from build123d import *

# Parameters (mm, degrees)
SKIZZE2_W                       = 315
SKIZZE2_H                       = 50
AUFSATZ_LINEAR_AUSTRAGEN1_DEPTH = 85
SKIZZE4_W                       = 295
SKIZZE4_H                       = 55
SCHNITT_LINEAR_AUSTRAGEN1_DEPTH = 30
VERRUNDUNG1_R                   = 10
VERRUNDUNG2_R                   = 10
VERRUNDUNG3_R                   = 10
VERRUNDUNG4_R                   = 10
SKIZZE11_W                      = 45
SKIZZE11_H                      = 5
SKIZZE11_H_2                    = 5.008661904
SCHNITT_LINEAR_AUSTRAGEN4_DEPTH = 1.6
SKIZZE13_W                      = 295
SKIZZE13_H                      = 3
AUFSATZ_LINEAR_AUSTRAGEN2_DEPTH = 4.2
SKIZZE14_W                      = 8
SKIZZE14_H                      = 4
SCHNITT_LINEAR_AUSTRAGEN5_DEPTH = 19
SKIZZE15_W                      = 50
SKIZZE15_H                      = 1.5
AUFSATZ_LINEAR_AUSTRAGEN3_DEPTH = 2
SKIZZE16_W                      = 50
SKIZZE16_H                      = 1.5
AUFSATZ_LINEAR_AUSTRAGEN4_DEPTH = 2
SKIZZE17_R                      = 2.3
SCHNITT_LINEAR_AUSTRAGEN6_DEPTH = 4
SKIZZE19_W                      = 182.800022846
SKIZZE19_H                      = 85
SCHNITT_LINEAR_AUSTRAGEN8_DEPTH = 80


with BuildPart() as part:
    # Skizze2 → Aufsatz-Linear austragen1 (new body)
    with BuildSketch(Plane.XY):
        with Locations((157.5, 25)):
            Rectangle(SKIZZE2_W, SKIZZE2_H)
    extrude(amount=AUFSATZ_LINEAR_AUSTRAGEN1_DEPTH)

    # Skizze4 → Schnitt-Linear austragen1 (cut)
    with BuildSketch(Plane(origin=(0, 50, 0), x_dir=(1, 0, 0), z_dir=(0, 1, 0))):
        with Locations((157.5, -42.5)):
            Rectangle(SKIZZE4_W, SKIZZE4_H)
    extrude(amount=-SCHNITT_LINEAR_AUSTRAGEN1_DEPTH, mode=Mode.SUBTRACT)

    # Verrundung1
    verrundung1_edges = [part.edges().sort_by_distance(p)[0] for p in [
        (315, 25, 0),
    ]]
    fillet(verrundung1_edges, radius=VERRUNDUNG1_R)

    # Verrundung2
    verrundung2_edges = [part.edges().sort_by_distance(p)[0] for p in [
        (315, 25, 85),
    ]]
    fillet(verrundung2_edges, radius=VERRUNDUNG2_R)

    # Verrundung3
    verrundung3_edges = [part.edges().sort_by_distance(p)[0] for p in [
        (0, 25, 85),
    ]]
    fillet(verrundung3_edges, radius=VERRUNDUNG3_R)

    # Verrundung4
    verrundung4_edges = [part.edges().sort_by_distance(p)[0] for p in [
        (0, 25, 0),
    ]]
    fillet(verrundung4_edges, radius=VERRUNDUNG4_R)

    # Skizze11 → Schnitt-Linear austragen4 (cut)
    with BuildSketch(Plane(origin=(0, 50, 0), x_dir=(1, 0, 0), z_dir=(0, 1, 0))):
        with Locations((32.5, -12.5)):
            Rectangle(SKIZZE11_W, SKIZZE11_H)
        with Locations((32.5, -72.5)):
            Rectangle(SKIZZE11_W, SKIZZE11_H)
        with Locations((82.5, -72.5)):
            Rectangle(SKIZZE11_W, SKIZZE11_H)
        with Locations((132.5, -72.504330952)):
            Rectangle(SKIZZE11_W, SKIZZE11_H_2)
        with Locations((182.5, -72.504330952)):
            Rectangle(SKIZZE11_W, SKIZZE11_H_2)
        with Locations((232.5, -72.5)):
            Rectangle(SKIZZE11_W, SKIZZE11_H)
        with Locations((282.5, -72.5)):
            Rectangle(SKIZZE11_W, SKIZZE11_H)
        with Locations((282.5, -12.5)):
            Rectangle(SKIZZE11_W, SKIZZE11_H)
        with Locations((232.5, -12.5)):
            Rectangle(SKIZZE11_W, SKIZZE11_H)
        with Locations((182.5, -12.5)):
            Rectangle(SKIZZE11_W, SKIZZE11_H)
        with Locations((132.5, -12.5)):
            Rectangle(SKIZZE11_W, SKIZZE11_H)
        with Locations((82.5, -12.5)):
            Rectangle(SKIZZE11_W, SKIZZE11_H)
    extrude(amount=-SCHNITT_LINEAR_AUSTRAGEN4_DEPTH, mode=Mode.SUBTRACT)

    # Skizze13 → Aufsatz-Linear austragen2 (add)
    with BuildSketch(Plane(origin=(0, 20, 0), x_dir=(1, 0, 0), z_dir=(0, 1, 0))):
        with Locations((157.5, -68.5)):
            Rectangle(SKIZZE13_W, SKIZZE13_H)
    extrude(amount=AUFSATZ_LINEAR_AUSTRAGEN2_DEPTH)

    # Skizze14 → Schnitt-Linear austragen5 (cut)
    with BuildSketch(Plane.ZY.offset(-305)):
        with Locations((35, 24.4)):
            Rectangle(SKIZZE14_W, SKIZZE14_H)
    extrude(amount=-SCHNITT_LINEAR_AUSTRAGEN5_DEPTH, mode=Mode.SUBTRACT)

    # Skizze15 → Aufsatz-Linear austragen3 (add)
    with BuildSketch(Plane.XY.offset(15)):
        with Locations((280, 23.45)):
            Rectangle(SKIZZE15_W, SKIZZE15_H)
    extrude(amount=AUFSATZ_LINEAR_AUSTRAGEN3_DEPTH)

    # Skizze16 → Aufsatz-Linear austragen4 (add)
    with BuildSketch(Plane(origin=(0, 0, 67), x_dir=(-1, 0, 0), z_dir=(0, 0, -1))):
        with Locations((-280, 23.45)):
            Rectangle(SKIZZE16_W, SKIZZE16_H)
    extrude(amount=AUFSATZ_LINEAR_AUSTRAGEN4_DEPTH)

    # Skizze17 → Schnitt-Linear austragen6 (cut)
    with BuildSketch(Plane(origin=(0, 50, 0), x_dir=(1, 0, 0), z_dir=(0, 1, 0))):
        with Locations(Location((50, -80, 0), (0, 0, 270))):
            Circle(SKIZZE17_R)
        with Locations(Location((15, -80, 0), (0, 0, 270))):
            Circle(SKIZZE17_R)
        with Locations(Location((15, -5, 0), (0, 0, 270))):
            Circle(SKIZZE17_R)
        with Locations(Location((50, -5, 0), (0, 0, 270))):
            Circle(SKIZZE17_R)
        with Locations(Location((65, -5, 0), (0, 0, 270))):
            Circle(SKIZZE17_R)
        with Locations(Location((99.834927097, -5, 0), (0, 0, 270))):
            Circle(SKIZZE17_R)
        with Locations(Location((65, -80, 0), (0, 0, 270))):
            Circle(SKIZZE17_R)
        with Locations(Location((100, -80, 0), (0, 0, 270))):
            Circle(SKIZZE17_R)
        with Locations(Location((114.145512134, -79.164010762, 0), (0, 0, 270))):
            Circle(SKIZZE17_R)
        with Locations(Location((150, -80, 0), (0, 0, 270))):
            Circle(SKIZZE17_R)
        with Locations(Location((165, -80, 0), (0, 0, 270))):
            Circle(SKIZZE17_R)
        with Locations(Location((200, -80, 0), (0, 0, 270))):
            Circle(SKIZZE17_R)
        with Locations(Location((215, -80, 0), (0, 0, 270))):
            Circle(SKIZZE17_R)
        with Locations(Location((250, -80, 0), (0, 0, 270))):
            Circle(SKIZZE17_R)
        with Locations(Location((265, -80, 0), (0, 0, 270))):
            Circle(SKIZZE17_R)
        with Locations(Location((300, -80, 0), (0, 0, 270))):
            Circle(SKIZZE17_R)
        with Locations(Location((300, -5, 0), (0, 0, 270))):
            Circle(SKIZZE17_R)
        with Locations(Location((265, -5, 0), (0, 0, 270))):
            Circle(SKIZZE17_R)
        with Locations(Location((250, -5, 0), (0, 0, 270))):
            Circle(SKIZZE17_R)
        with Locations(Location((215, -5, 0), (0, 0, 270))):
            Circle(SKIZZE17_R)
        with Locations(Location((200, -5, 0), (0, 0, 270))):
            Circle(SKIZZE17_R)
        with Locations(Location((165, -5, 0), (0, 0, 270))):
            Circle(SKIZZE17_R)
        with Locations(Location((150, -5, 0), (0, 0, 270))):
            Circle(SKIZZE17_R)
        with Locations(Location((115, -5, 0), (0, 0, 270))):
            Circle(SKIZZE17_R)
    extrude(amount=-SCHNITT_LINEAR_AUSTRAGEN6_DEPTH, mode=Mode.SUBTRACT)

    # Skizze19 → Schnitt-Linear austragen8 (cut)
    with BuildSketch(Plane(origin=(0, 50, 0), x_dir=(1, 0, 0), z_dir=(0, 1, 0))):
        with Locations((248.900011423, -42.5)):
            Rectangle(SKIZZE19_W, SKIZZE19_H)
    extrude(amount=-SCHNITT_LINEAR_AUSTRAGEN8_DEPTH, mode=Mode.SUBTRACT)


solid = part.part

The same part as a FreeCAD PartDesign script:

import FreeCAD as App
import Part
import Sketcher

V = App.Vector
Q = App.Units.Quantity


def edges_at(feature, points):
    """Names of the edges that pass closest to the given points."""
    edges = feature.Shape.Edges
    near = lambda p: min(range(len(edges)), key=lambda i: edges[i].distToShape(Part.Vertex(*p))[0])
    return sorted({f"Edge{near(p) + 1}" for p in points})

doc = App.newDocument("Part")
params = doc.addObject("Spreadsheet::Sheet", "Params")
for row, (alias, value) in enumerate([
    ("sketch1_width", "315 mm"),
    ("sketch1_height", "50 mm"),
    ("pad1_length", "85 mm"),
    ("sketch2_width", "295 mm"),
    ("sketch2_height", "55 mm"),
    ("pocket1_length", "30 mm"),
    ("fillet_radius", "10 mm"),
    ("fillet2_radius", "10 mm"),
    ("fillet3_radius", "10 mm"),
    ("fillet4_radius", "10 mm"),
    ("sketch3_width", "45 mm"),
    ("sketch3_height", "5 mm"),
    ("pocket2_length", "1.6 mm"),
    ("sketch4_width", "295 mm"),
    ("sketch4_height", "3 mm"),
    ("pad2_length", "4.2 mm"),
    ("sketch5_width", "4 mm"),
    ("sketch5_height", "8 mm"),
    ("pocket3_length", "19 mm"),
    ("sketch6_width", "50 mm"),
    ("sketch6_height", "1.5 mm"),
    ("pad3_length", "2 mm"),
    ("sketch7_width", "50 mm"),
    ("sketch7_height", "1.5 mm"),
    ("pad4_length", "2 mm"),
    ("sketch8_diameter", "4.6 mm"),
    ("pocket4_length", "4 mm"),
    ("sketch9_height", "85 mm"),
    ("pocket5_length", "80 mm"),
], start=1):
    params.set(f"A{row}", alias)
    params.set(f"B{row}", "=" + value)
    params.setAlias(f"B{row}", alias)

body = doc.addObject("PartDesign::Body", "Body")

# Sketch on XY plane
sketch1 = doc.addObject("Sketcher::SketchObject", "Sketch")
body.addObject(sketch1)
sketch1.AttachmentSupport = (doc.XY_Plane, [""])
sketch1.MapMode = "FlatFace"
sketch1.addGeometry(Part.LineSegment(V(0, 50, 0), V(0, 0, 0)), False)
sketch1.addGeometry(Part.LineSegment(V(0, 0, 0), V(315, 0, 0)), False)
sketch1.addGeometry(Part.LineSegment(V(315, 0, 0), V(315, 50, 0)), False)
sketch1.addGeometry(Part.LineSegment(V(315, 50, 0), V(0, 50, 0)), False)
sketch1.addConstraint(Sketcher.Constraint("Coincident", 0, 2, 1, 1))
sketch1.addConstraint(Sketcher.Constraint("Coincident", 1, 2, 2, 1))
sketch1.addConstraint(Sketcher.Constraint("Coincident", 2, 2, 3, 1))
sketch1.addConstraint(Sketcher.Constraint("Coincident", 3, 2, 0, 1))
sketch1.addConstraint(Sketcher.Constraint("Vertical", 0))
sketch1.addConstraint(Sketcher.Constraint("Horizontal", 1))
sketch1.addConstraint(Sketcher.Constraint("Vertical", 2))
sketch1.addConstraint(Sketcher.Constraint("Horizontal", 3))
sketch1.addConstraint(Sketcher.Constraint("Coincident", 0, 2, -1, 1))
sketch1.addConstraint(Sketcher.Constraint("DistanceX", 1, 1, 1, 2, Q("315 mm")))
sketch1.addConstraint(Sketcher.Constraint("DistanceY", 0, 2, 0, 1, Q("50 mm")))
sketch1.setExpression("Constraints[9]", "Params.sketch1_width")
sketch1.setExpression("Constraints[10]", "Params.sketch1_height")
pad1 = doc.addObject("PartDesign::Pad", "Pad")
body.addObject(pad1)
pad1.Profile = sketch1
pad1.setExpression("Length", "Params.pad1_length")

# Sketch on XZ plane
sketch2 = doc.addObject("Sketcher::SketchObject", "Sketch001")
body.addObject(sketch2)
sketch2.AttachmentSupport = (doc.XZ_Plane, [""])
sketch2.MapMode = "FlatFace"
sketch2.AttachmentOffset = App.Placement(V(0, 0, -50), App.Rotation())
sketch2.addGeometry(Part.LineSegment(V(10, 15, 0), V(10, 70, 0)), False)
sketch2.addGeometry(Part.LineSegment(V(10, 70, 0), V(305, 70, 0)), False)
sketch2.addGeometry(Part.LineSegment(V(305, 70, 0), V(305, 15, 0)), False)
sketch2.addGeometry(Part.LineSegment(V(305, 15, 0), V(10, 15, 0)), False)
sketch2.addConstraint(Sketcher.Constraint("Coincident", 0, 2, 1, 1))
sketch2.addConstraint(Sketcher.Constraint("Coincident", 1, 2, 2, 1))
sketch2.addConstraint(Sketcher.Constraint("Coincident", 2, 2, 3, 1))
sketch2.addConstraint(Sketcher.Constraint("Coincident", 3, 2, 0, 1))
sketch2.addConstraint(Sketcher.Constraint("Vertical", 0))
sketch2.addConstraint(Sketcher.Constraint("Horizontal", 1))
sketch2.addConstraint(Sketcher.Constraint("Vertical", 2))
sketch2.addConstraint(Sketcher.Constraint("Horizontal", 3))
sketch2.addConstraint(Sketcher.Constraint("DistanceX", 1, 1, 1, 2, Q("295 mm")))
sketch2.addConstraint(Sketcher.Constraint("DistanceY", 0, 1, 0, 2, Q("55 mm")))
sketch2.addConstraint(Sketcher.Constraint("DistanceX", -1, 1, 0, 2, Q("10 mm")))
sketch2.addConstraint(Sketcher.Constraint("DistanceY", -1, 1, 0, 2, Q("70 mm")))
sketch2.setExpression("Constraints[8]", "Params.sketch2_width")
sketch2.setExpression("Constraints[9]", "Params.sketch2_height")
pocket1 = doc.addObject("PartDesign::Pocket", "Pocket")
body.addObject(pocket1)
pocket1.Profile = sketch2
pocket1.setExpression("Length", "Params.pocket1_length")
pocket1.Reversed = True
doc.recompute()

fillet = doc.addObject("PartDesign::Fillet", "Fillet")
body.addObject(fillet)
fillet.Base = (pocket1, edges_at(pocket1, [(315, 25, 0)]))
fillet.setExpression("Radius", "Params.fillet_radius")
doc.recompute()

fillet2 = doc.addObject("PartDesign::Fillet", "Fillet001")
body.addObject(fillet2)
fillet2.Base = (fillet, edges_at(fillet, [(315, 25, 85)]))
fillet2.setExpression("Radius", "Params.fillet2_radius")
doc.recompute()

fillet3 = doc.addObject("PartDesign::Fillet", "Fillet002")
body.addObject(fillet3)
fillet3.Base = (fillet2, edges_at(fillet2, [(0, 25, 85)]))
fillet3.setExpression("Radius", "Params.fillet3_radius")
doc.recompute()

fillet4 = doc.addObject("PartDesign::Fillet", "Fillet003")
body.addObject(fillet4)
fillet4.Base = (fillet3, edges_at(fillet3, [(0, 25, 0)]))
fillet4.setExpression("Radius", "Params.fillet4_radius")

# Sketch on XZ plane
sketch3 = doc.addObject("Sketcher::SketchObject", "Sketch002")
body.addObject(sketch3)
sketch3.AttachmentSupport = (doc.XZ_Plane, [""])
sketch3.MapMode = "FlatFace"
sketch3.AttachmentOffset = App.Placement(V(0, 0, -50), App.Rotation())
sketch3.addGeometry(Part.LineSegment(V(10, 10, 0), V(10, 15, 0)), False)
sketch3.addGeometry(Part.LineSegment(V(10, 15, 0), V(55, 15, 0)), False)
sketch3.addGeometry(Part.LineSegment(V(55, 15, 0), V(55, 10, 0)), False)
sketch3.addGeometry(Part.LineSegment(V(55, 10, 0), V(10, 10, 0)), False)
sketch3.addGeometry(Part.LineSegment(V(10, 70, 0), V(10, 75, 0)), False)
sketch3.addGeometry(Part.LineSegment(V(10, 75, 0), V(55, 75, 0)), False)
sketch3.addGeometry(Part.LineSegment(V(55, 75, 0), V(55, 70, 0)), False)
sketch3.addGeometry(Part.LineSegment(V(55, 70, 0), V(10, 70, 0)), False)
sketch3.addGeometry(Part.LineSegment(V(60, 70, 0), V(60, 75, 0)), False)
sketch3.addGeometry(Part.LineSegment(V(60, 75, 0), V(105, 75, 0)), False)
sketch3.addGeometry(Part.LineSegment(V(105, 75, 0), V(105, 70, 0)), False)
sketch3.addGeometry(Part.LineSegment(V(105, 70, 0), V(60, 70, 0)), False)
sketch3.addGeometry(Part.LineSegment(V(110, 70, 0), V(110, 75, 0)), False)
sketch3.addGeometry(Part.LineSegment(V(110, 75, 0), V(155, 75, 0)), False)
sketch3.addGeometry(Part.LineSegment(V(155, 75, 0), V(155, 70, 0)), False)
sketch3.addGeometry(Part.LineSegment(V(155, 70, 0), V(110, 70, 0)), False)
sketch3.addGeometry(Part.LineSegment(V(160, 70, 0), V(160, 75, 0)), False)
sketch3.addGeometry(Part.LineSegment(V(160, 75, 0), V(205, 75, 0)), False)
sketch3.addGeometry(Part.LineSegment(V(205, 75, 0), V(205, 70, 0)), False)
sketch3.addGeometry(Part.LineSegment(V(205, 70, 0), V(160, 70, 0)), False)
sketch3.addGeometry(Part.LineSegment(V(210, 70, 0), V(210, 75, 0)), False)
sketch3.addGeometry(Part.LineSegment(V(210, 75, 0), V(255, 75, 0)), False)
sketch3.addGeometry(Part.LineSegment(V(255, 75, 0), V(255, 70, 0)), False)
sketch3.addGeometry(Part.LineSegment(V(255, 70, 0), V(210, 70, 0)), False)
sketch3.addGeometry(Part.LineSegment(V(260, 70, 0), V(260, 75, 0)), False)
sketch3.addGeometry(Part.LineSegment(V(260, 75, 0), V(305, 75, 0)), False)
sketch3.addGeometry(Part.LineSegment(V(305, 75, 0), V(305, 70, 0)), False)
sketch3.addGeometry(Part.LineSegment(V(305, 70, 0), V(260, 70, 0)), False)
sketch3.addGeometry(Part.LineSegment(V(260, 10, 0), V(260, 15, 0)), False)
sketch3.addGeometry(Part.LineSegment(V(260, 15, 0), V(305, 15, 0)), False)
sketch3.addGeometry(Part.LineSegment(V(305, 15, 0), V(305, 10, 0)), False)
sketch3.addGeometry(Part.LineSegment(V(305, 10, 0), V(260, 10, 0)), False)
sketch3.addGeometry(Part.LineSegment(V(210, 10, 0), V(210, 15, 0)), False)
sketch3.addGeometry(Part.LineSegment(V(210, 15, 0), V(255, 15, 0)), False)
sketch3.addGeometry(Part.LineSegment(V(255, 15, 0), V(255, 10, 0)), False)
sketch3.addGeometry(Part.LineSegment(V(255, 10, 0), V(210, 10, 0)), False)
sketch3.addGeometry(Part.LineSegment(V(160, 10, 0), V(160, 15, 0)), False)
sketch3.addGeometry(Part.LineSegment(V(160, 15, 0), V(205, 15, 0)), False)
sketch3.addGeometry(Part.LineSegment(V(205, 15, 0), V(205, 10, 0)), False)
sketch3.addGeometry(Part.LineSegment(V(205, 10, 0), V(160, 10, 0)), False)
sketch3.addGeometry(Part.LineSegment(V(110, 10, 0), V(110, 15, 0)), False)
sketch3.addGeometry(Part.LineSegment(V(110, 15, 0), V(155, 15, 0)), False)
sketch3.addGeometry(Part.LineSegment(V(155, 15, 0), V(155, 10, 0)), False)
sketch3.addGeometry(Part.LineSegment(V(155, 10, 0), V(110, 10, 0)), False)
sketch3.addGeometry(Part.LineSegment(V(60, 10, 0), V(60, 15, 0)), False)
sketch3.addGeometry(Part.LineSegment(V(60, 15, 0), V(105, 15, 0)), False)
sketch3.addGeometry(Part.LineSegment(V(105, 15, 0), V(105, 10, 0)), False)
sketch3.addGeometry(Part.LineSegment(V(105, 10, 0), V(60, 10, 0)), False)
sketch3.addConstraint(Sketcher.Constraint("Coincident", 0, 2, 1, 1))
sketch3.addConstraint(Sketcher.Constraint("Coincident", 1, 2, 2, 1))
sketch3.addConstraint(Sketcher.Constraint("Coincident", 2, 2, 3, 1))
sketch3.addConstraint(Sketcher.Constraint("Coincident", 3, 2, 0, 1))
sketch3.addConstraint(Sketcher.Constraint("Coincident", 4, 2, 5, 1))
sketch3.addConstraint(Sketcher.Constraint("Coincident", 5, 2, 6, 1))
sketch3.addConstraint(Sketcher.Constraint("Coincident", 6, 2, 7, 1))
sketch3.addConstraint(Sketcher.Constraint("Coincident", 7, 2, 4, 1))
sketch3.addConstraint(Sketcher.Constraint("Coincident", 8, 2, 9, 1))
sketch3.addConstraint(Sketcher.Constraint("Coincident", 9, 2, 10, 1))
sketch3.addConstraint(Sketcher.Constraint("Coincident", 10, 2, 11, 1))
sketch3.addConstraint(Sketcher.Constraint("Coincident", 11, 2, 8, 1))
sketch3.addConstraint(Sketcher.Constraint("Coincident", 12, 2, 13, 1))
sketch3.addConstraint(Sketcher.Constraint("Coincident", 13, 2, 14, 1))
sketch3.addConstraint(Sketcher.Constraint("Coincident", 14, 2, 15, 1))
sketch3.addConstraint(Sketcher.Constraint("Coincident", 15, 2, 12, 1))
sketch3.addConstraint(Sketcher.Constraint("Coincident", 16, 2, 17, 1))
sketch3.addConstraint(Sketcher.Constraint("Coincident", 17, 2, 18, 1))
sketch3.addConstraint(Sketcher.Constraint("Coincident", 18, 2, 19, 1))
sketch3.addConstraint(Sketcher.Constraint("Coincident", 19, 2, 16, 1))
sketch3.addConstraint(Sketcher.Constraint("Coincident", 20, 2, 21, 1))
sketch3.addConstraint(Sketcher.Constraint("Coincident", 21, 2, 22, 1))
sketch3.addConstraint(Sketcher.Constraint("Coincident", 22, 2, 23, 1))
sketch3.addConstraint(Sketcher.Constraint("Coincident", 23, 2, 20, 1))
sketch3.addConstraint(Sketcher.Constraint("Coincident", 24, 2, 25, 1))
sketch3.addConstraint(Sketcher.Constraint("Coincident", 25, 2, 26, 1))
sketch3.addConstraint(Sketcher.Constraint("Coincident", 26, 2, 27, 1))
sketch3.addConstraint(Sketcher.Constraint("Coincident", 27, 2, 24, 1))
sketch3.addConstraint(Sketcher.Constraint("Coincident", 28, 2, 29, 1))
sketch3.addConstraint(Sketcher.Constraint("Coincident", 29, 2, 30, 1))
sketch3.addConstraint(Sketcher.Constraint("Coincident", 30, 2, 31, 1))
sketch3.addConstraint(Sketcher.Constraint("Coincident", 31, 2, 28, 1))
sketch3.addConstraint(Sketcher.Constraint("Coincident", 32, 2, 33, 1))
sketch3.addConstraint(Sketcher.Constraint("Coincident", 33, 2, 34, 1))
sketch3.addConstraint(Sketcher.Constraint("Coincident", 34, 2, 35, 1))
sketch3.addConstraint(Sketcher.Constraint("Coincident", 35, 2, 32, 1))
sketch3.addConstraint(Sketcher.Constraint("Coincident", 36, 2, 37, 1))
sketch3.addConstraint(Sketcher.Constraint("Coincident", 37, 2, 38, 1))
sketch3.addConstraint(Sketcher.Constraint("Coincident", 38, 2, 39, 1))
sketch3.addConstraint(Sketcher.Constraint("Coincident", 39, 2, 36, 1))
sketch3.addConstraint(Sketcher.Constraint("Coincident", 40, 2, 41, 1))
sketch3.addConstraint(Sketcher.Constraint("Coincident", 41, 2, 42, 1))
sketch3.addConstraint(Sketcher.Constraint("Coincident", 42, 2, 43, 1))
sketch3.addConstraint(Sketcher.Constraint("Coincident", 43, 2, 40, 1))
sketch3.addConstraint(Sketcher.Constraint("Coincident", 44, 2, 45, 1))
sketch3.addConstraint(Sketcher.Constraint("Coincident", 45, 2, 46, 1))
sketch3.addConstraint(Sketcher.Constraint("Coincident", 46, 2, 47, 1))
sketch3.addConstraint(Sketcher.Constraint("Coincident", 47, 2, 44, 1))
sketch3.addConstraint(Sketcher.Constraint("Vertical", 0))
sketch3.addConstraint(Sketcher.Constraint("Horizontal", 1))
sketch3.addConstraint(Sketcher.Constraint("Vertical", 2))
sketch3.addConstraint(Sketcher.Constraint("Horizontal", 3))
sketch3.addConstraint(Sketcher.Constraint("Vertical", 4))
sketch3.addConstraint(Sketcher.Constraint("Horizontal", 5))
sketch3.addConstraint(Sketcher.Constraint("Vertical", 6))
sketch3.addConstraint(Sketcher.Constraint("Horizontal", 7))
sketch3.addConstraint(Sketcher.Constraint("Vertical", 8))
sketch3.addConstraint(Sketcher.Constraint("Horizontal", 9))
sketch3.addConstraint(Sketcher.Constraint("Vertical", 10))
sketch3.addConstraint(Sketcher.Constraint("Horizontal", 11))
sketch3.addConstraint(Sketcher.Constraint("Vertical", 12))
sketch3.addConstraint(Sketcher.Constraint("Horizontal", 13))
sketch3.addConstraint(Sketcher.Constraint("Vertical", 14))
sketch3.addConstraint(Sketcher.Constraint("Horizontal", 15))
sketch3.addConstraint(Sketcher.Constraint("Vertical", 16))
sketch3.addConstraint(Sketcher.Constraint("Horizontal", 17))
sketch3.addConstraint(Sketcher.Constraint("Vertical", 18))
sketch3.addConstraint(Sketcher.Constraint("Horizontal", 19))
sketch3.addConstraint(Sketcher.Constraint("Vertical", 20))
sketch3.addConstraint(Sketcher.Constraint("Horizontal", 21))
sketch3.addConstraint(Sketcher.Constraint("Vertical", 22))
sketch3.addConstraint(Sketcher.Constraint("Horizontal", 23))
sketch3.addConstraint(Sketcher.Constraint("Vertical", 24))
sketch3.addConstraint(Sketcher.Constraint("Horizontal", 25))
sketch3.addConstraint(Sketcher.Constraint("Vertical", 26))
sketch3.addConstraint(Sketcher.Constraint("Horizontal", 27))
sketch3.addConstraint(Sketcher.Constraint("Vertical", 28))
sketch3.addConstraint(Sketcher.Constraint("Horizontal", 29))
sketch3.addConstraint(Sketcher.Constraint("Vertical", 30))
sketch3.addConstraint(Sketcher.Constraint("Horizontal", 31))
sketch3.addConstraint(Sketcher.Constraint("Vertical", 32))
sketch3.addConstraint(Sketcher.Constraint("Horizontal", 33))
sketch3.addConstraint(Sketcher.Constraint("Vertical", 34))
sketch3.addConstraint(Sketcher.Constraint("Horizontal", 35))
sketch3.addConstraint(Sketcher.Constraint("Vertical", 36))
sketch3.addConstraint(Sketcher.Constraint("Horizontal", 37))
sketch3.addConstraint(Sketcher.Constraint("Vertical", 38))
sketch3.addConstraint(Sketcher.Constraint("Horizontal", 39))
sketch3.addConstraint(Sketcher.Constraint("Vertical", 40))
sketch3.addConstraint(Sketcher.Constraint("Horizontal", 41))
sketch3.addConstraint(Sketcher.Constraint("Vertical", 42))
sketch3.addConstraint(Sketcher.Constraint("Horizontal", 43))
sketch3.addConstraint(Sketcher.Constraint("Vertical", 44))
sketch3.addConstraint(Sketcher.Constraint("Horizontal", 45))
sketch3.addConstraint(Sketcher.Constraint("Vertical", 46))
sketch3.addConstraint(Sketcher.Constraint("Horizontal", 47))
sketch3.addConstraint(Sketcher.Constraint("Horizontal", 5, 2, 8, 2))
sketch3.addConstraint(Sketcher.Constraint("Horizontal", 7, 2, 10, 2))
sketch3.addConstraint(Sketcher.Constraint("Horizontal", 11, 2, 14, 2))
sketch3.addConstraint(Sketcher.Constraint("Horizontal", 13, 2, 16, 2))
sketch3.addConstraint(Sketcher.Constraint("Horizontal", 15, 2, 18, 2))
sketch3.addConstraint(Sketcher.Constraint("Horizontal", 9, 2, 20, 2))
sketch3.addConstraint(Sketcher.Constraint("Horizontal", 19, 2, 22, 2))
sketch3.addConstraint(Sketcher.Constraint("Horizontal", 21, 2, 24, 2))
sketch3.addConstraint(Sketcher.Constraint("Horizontal", 23, 2, 26, 2))
sketch3.addConstraint(Sketcher.Constraint("Horizontal", 1, 2, 28, 2))
sketch3.addConstraint(Sketcher.Constraint("Horizontal", 3, 2, 30, 2))
sketch3.addConstraint(Sketcher.Constraint("Horizontal", 29, 2, 32, 2))
sketch3.addConstraint(Sketcher.Constraint("Horizontal", 31, 2, 34, 2))
sketch3.addConstraint(Sketcher.Constraint("Horizontal", 33, 2, 36, 2))
sketch3.addConstraint(Sketcher.Constraint("Horizontal", 35, 2, 38, 2))
sketch3.addConstraint(Sketcher.Constraint("Horizontal", 37, 2, 40, 2))
sketch3.addConstraint(Sketcher.Constraint("Horizontal", 39, 2, 42, 2))
sketch3.addConstraint(Sketcher.Constraint("Horizontal", 41, 2, 44, 2))
sketch3.addConstraint(Sketcher.Constraint("Horizontal", 43, 2, 46, 2))
sketch3.addConstraint(Sketcher.Constraint("Vertical", 3, 2, 4, 2))
sketch3.addConstraint(Sketcher.Constraint("Vertical", 2, 2, 5, 2))
sketch3.addConstraint(Sketcher.Constraint("Vertical", 27, 2, 28, 2))
sketch3.addConstraint(Sketcher.Constraint("Vertical", 26, 2, 29, 2))
sketch3.addConstraint(Sketcher.Constraint("Vertical", 23, 2, 32, 2))
sketch3.addConstraint(Sketcher.Constraint("Vertical", 22, 2, 33, 2))
sketch3.addConstraint(Sketcher.Constraint("Vertical", 19, 2, 36, 2))
sketch3.addConstraint(Sketcher.Constraint("Vertical", 18, 2, 37, 2))
sketch3.addConstraint(Sketcher.Constraint("Vertical", 15, 2, 40, 2))
sketch3.addConstraint(Sketcher.Constraint("Vertical", 14, 2, 41, 2))
sketch3.addConstraint(Sketcher.Constraint("Vertical", 11, 2, 44, 2))
sketch3.addConstraint(Sketcher.Constraint("Vertical", 10, 2, 45, 2))
sketch3.addConstraint(Sketcher.Constraint("Equal", 7, 9))
sketch3.addConstraint(Sketcher.Constraint("Equal", 11, 13))
sketch3.addConstraint(Sketcher.Constraint("Equal", 15, 17))
sketch3.addConstraint(Sketcher.Constraint("Equal", 19, 21))
sketch3.addConstraint(Sketcher.Constraint("Equal", 23, 25))
sketch3.addConstraint(Sketcher.Constraint("Equal", 2, 4))
sketch3.addConstraint(Sketcher.Constraint("DistanceX", 1, 1, 1, 2, Q("45 mm")))
sketch3.addConstraint(Sketcher.Constraint("DistanceY", 0, 1, 0, 2, Q("5 mm")))
sketch3.addConstraint(Sketcher.Constraint("DistanceX", -1, 1, 0, 2, Q("10 mm")))
sketch3.addConstraint(Sketcher.Constraint("DistanceY", -1, 1, 0, 2, Q("15 mm")))
sketch3.addConstraint(Sketcher.Constraint("DistanceY", -1, 1, 4, 2, Q("75 mm")))
sketch3.addConstraint(Sketcher.Constraint("DistanceX", -1, 1, 8, 2, Q("60 mm")))
sketch3.addConstraint(Sketcher.Constraint("DistanceX", -1, 1, 12, 2, Q("110 mm")))
sketch3.addConstraint(Sketcher.Constraint("DistanceX", -1, 1, 16, 2, Q("160 mm")))
sketch3.addConstraint(Sketcher.Constraint("DistanceX", -1, 1, 20, 2, Q("210 mm")))
sketch3.addConstraint(Sketcher.Constraint("DistanceX", -1, 1, 24, 2, Q("260 mm")))
sketch3.addConstraint(Sketcher.Constraint("DistanceY", 12, 1, 12, 2, Q("5.008662 mm")))
sketch3.setExpression("Constraints[133]", "Params.sketch3_width")
sketch3.setExpression("Constraints[134]", "Params.sketch3_height")
pocket2 = doc.addObject("PartDesign::Pocket", "Pocket001")
body.addObject(pocket2)
pocket2.Profile = sketch3
pocket2.setExpression("Length", "Params.pocket2_length")
pocket2.Reversed = True

# Sketch on XZ plane
sketch4 = doc.addObject("Sketcher::SketchObject", "Sketch003")
body.addObject(sketch4)
sketch4.AttachmentSupport = (doc.XZ_Plane, [""])
sketch4.MapMode = "FlatFace"
sketch4.AttachmentOffset = App.Placement(V(0, 0, -20), App.Rotation())
sketch4.addGeometry(Part.LineSegment(V(10, 67, 0), V(10, 70, 0)), False)
sketch4.addGeometry(Part.LineSegment(V(10, 70, 0), V(305, 70, 0)), False)
sketch4.addGeometry(Part.LineSegment(V(305, 70, 0), V(305, 67, 0)), False)
sketch4.addGeometry(Part.LineSegment(V(305, 67, 0), V(10, 67, 0)), False)
sketch4.addConstraint(Sketcher.Constraint("Coincident", 0, 2, 1, 1))
sketch4.addConstraint(Sketcher.Constraint("Coincident", 1, 2, 2, 1))
sketch4.addConstraint(Sketcher.Constraint("Coincident", 2, 2, 3, 1))
sketch4.addConstraint(Sketcher.Constraint("Coincident", 3, 2, 0, 1))
sketch4.addConstraint(Sketcher.Constraint("Vertical", 0))
sketch4.addConstraint(Sketcher.Constraint("Horizontal", 1))
sketch4.addConstraint(Sketcher.Constraint("Vertical", 2))
sketch4.addConstraint(Sketcher.Constraint("Horizontal", 3))
sketch4.addConstraint(Sketcher.Constraint("DistanceX", 1, 1, 1, 2, Q("295 mm")))
sketch4.addConstraint(Sketcher.Constraint("DistanceY", 0, 1, 0, 2, Q("3 mm")))
sketch4.addConstraint(Sketcher.Constraint("DistanceX", -1, 1, 0, 2, Q("10 mm")))
sketch4.addConstraint(Sketcher.Constraint("DistanceY", -1, 1, 0, 2, Q("70 mm")))
sketch4.setExpression("Constraints[8]", "Params.sketch4_width")
sketch4.setExpression("Constraints[9]", "Params.sketch4_height")
pad2 = doc.addObject("PartDesign::Pad", "Pad001")
body.addObject(pad2)
pad2.Profile = sketch4
pad2.setExpression("Length", "Params.pad2_length")
pad2.Reversed = True

# Sketch on YZ plane
sketch5 = doc.addObject("Sketcher::SketchObject", "Sketch004")
body.addObject(sketch5)
sketch5.AttachmentSupport = (doc.YZ_Plane, [""])
sketch5.MapMode = "FlatFace"
sketch5.AttachmentOffset = App.Placement(V(0, 0, 305), App.Rotation())
sketch5.addGeometry(Part.LineSegment(V(26.4, 31, 0), V(22.4, 31, 0)), False)
sketch5.addGeometry(Part.LineSegment(V(22.4, 31, 0), V(22.4, 39, 0)), False)
sketch5.addGeometry(Part.LineSegment(V(22.4, 39, 0), V(26.4, 39, 0)), False)
sketch5.addGeometry(Part.LineSegment(V(26.4, 39, 0), V(26.4, 31, 0)), False)
sketch5.addConstraint(Sketcher.Constraint("Coincident", 0, 2, 1, 1))
sketch5.addConstraint(Sketcher.Constraint("Coincident", 1, 2, 2, 1))
sketch5.addConstraint(Sketcher.Constraint("Coincident", 2, 2, 3, 1))
sketch5.addConstraint(Sketcher.Constraint("Coincident", 3, 2, 0, 1))
sketch5.addConstraint(Sketcher.Constraint("Horizontal", 0))
sketch5.addConstraint(Sketcher.Constraint("Vertical", 1))
sketch5.addConstraint(Sketcher.Constraint("Horizontal", 2))
sketch5.addConstraint(Sketcher.Constraint("Vertical", 3))
sketch5.addConstraint(Sketcher.Constraint("DistanceX", 0, 2, 0, 1, Q("4 mm")))
sketch5.addConstraint(Sketcher.Constraint("DistanceY", 1, 1, 1, 2, Q("8 mm")))
sketch5.addConstraint(Sketcher.Constraint("DistanceY", -1, 1, 0, 2, Q("31 mm")))
sketch5.addConstraint(Sketcher.Constraint("DistanceX", -1, 1, 0, 2, Q("22.4 mm")))
sketch5.setExpression("Constraints[8]", "Params.sketch5_width")
sketch5.setExpression("Constraints[9]", "Params.sketch5_height")
pocket3 = doc.addObject("PartDesign::Pocket", "Pocket002")
body.addObject(pocket3)
pocket3.Profile = sketch5
pocket3.setExpression("Length", "Params.pocket3_length")
pocket3.Reversed = True

# Sketch on XY plane
sketch6 = doc.addObject("Sketcher::SketchObject", "Sketch005")
body.addObject(sketch6)
sketch6.AttachmentSupport = (doc.XY_Plane, [""])
sketch6.MapMode = "FlatFace"
sketch6.AttachmentOffset = App.Placement(V(0, 0, 15), App.Rotation())
sketch6.addGeometry(Part.LineSegment(V(255, 24.2, 0), V(255, 22.7, 0)), False)
sketch6.addGeometry(Part.LineSegment(V(255, 22.7, 0), V(305, 22.7, 0)), False)
sketch6.addGeometry(Part.LineSegment(V(305, 22.7, 0), V(305, 24.2, 0)), False)
sketch6.addGeometry(Part.LineSegment(V(305, 24.2, 0), V(255, 24.2, 0)), False)
sketch6.addConstraint(Sketcher.Constraint("Coincident", 0, 2, 1, 1))
sketch6.addConstraint(Sketcher.Constraint("Coincident", 1, 2, 2, 1))
sketch6.addConstraint(Sketcher.Constraint("Coincident", 2, 2, 3, 1))
sketch6.addConstraint(Sketcher.Constraint("Coincident", 3, 2, 0, 1))
sketch6.addConstraint(Sketcher.Constraint("Vertical", 0))
sketch6.addConstraint(Sketcher.Constraint("Horizontal", 1))
sketch6.addConstraint(Sketcher.Constraint("Vertical", 2))
sketch6.addConstraint(Sketcher.Constraint("Horizontal", 3))
sketch6.addConstraint(Sketcher.Constraint("DistanceX", 1, 1, 1, 2, Q("50 mm")))
sketch6.addConstraint(Sketcher.Constraint("DistanceY", 0, 2, 0, 1, Q("1.5 mm")))
sketch6.addConstraint(Sketcher.Constraint("DistanceX", -1, 1, 0, 2, Q("255 mm")))
sketch6.addConstraint(Sketcher.Constraint("DistanceY", -1, 1, 0, 2, Q("22.7 mm")))
sketch6.setExpression("Constraints[8]", "Params.sketch6_width")
sketch6.setExpression("Constraints[9]", "Params.sketch6_height")
pad3 = doc.addObject("PartDesign::Pad", "Pad002")
body.addObject(pad3)
pad3.Profile = sketch6
pad3.setExpression("Length", "Params.pad3_length")

# Sketch on XY plane
sketch7 = doc.addObject("Sketcher::SketchObject", "Sketch006")
body.addObject(sketch7)
sketch7.AttachmentSupport = (doc.XY_Plane, [""])
sketch7.MapMode = "FlatFace"
sketch7.AttachmentOffset = App.Placement(V(0, 0, 67), App.Rotation())
sketch7.addGeometry(Part.LineSegment(V(305, 24.2, 0), V(305, 22.7, 0)), False)
sketch7.addGeometry(Part.LineSegment(V(305, 22.7, 0), V(255, 22.7, 0)), False)
sketch7.addGeometry(Part.LineSegment(V(255, 22.7, 0), V(255, 24.2, 0)), False)
sketch7.addGeometry(Part.LineSegment(V(255, 24.2, 0), V(305, 24.2, 0)), False)
sketch7.addConstraint(Sketcher.Constraint("Coincident", 0, 2, 1, 1))
sketch7.addConstraint(Sketcher.Constraint("Coincident", 1, 2, 2, 1))
sketch7.addConstraint(Sketcher.Constraint("Coincident", 2, 2, 3, 1))
sketch7.addConstraint(Sketcher.Constraint("Coincident", 3, 2, 0, 1))
sketch7.addConstraint(Sketcher.Constraint("Vertical", 0))
sketch7.addConstraint(Sketcher.Constraint("Horizontal", 1))
sketch7.addConstraint(Sketcher.Constraint("Vertical", 2))
sketch7.addConstraint(Sketcher.Constraint("Horizontal", 3))
sketch7.addConstraint(Sketcher.Constraint("DistanceX", 1, 2, 1, 1, Q("50 mm")))
sketch7.addConstraint(Sketcher.Constraint("DistanceY", 0, 2, 0, 1, Q("1.5 mm")))
sketch7.addConstraint(Sketcher.Constraint("DistanceX", -1, 1, 0, 2, Q("305 mm")))
sketch7.addConstraint(Sketcher.Constraint("DistanceY", -1, 1, 0, 2, Q("22.7 mm")))
sketch7.setExpression("Constraints[8]", "Params.sketch7_width")
sketch7.setExpression("Constraints[9]", "Params.sketch7_height")
pad4 = doc.addObject("PartDesign::Pad", "Pad003")
body.addObject(pad4)
pad4.Profile = sketch7
pad4.setExpression("Length", "Params.pad4_length")
pad4.Reversed = True

# Sketch on XZ plane
sketch8 = doc.addObject("Sketcher::SketchObject", "Sketch007")
body.addObject(sketch8)
sketch8.AttachmentSupport = (doc.XZ_Plane, [""])
sketch8.MapMode = "FlatFace"
sketch8.AttachmentOffset = App.Placement(V(0, 0, -50), App.Rotation())
sketch8.addGeometry(Part.Circle(V(50, 80, 0), V(0, 0, 1), 2.3), False)
sketch8.addGeometry(Part.Circle(V(15, 80, 0), V(0, 0, 1), 2.3), False)
sketch8.addGeometry(Part.Circle(V(15, 5, 0), V(0, 0, 1), 2.3), False)
sketch8.addGeometry(Part.Circle(V(50, 5, 0), V(0, 0, 1), 2.3), False)
sketch8.addGeometry(Part.Circle(V(65, 5, 0), V(0, 0, 1), 2.3), False)
sketch8.addGeometry(Part.Circle(V(99.8, 5, 0), V(0, 0, 1), 2.3), False)
sketch8.addGeometry(Part.Circle(V(65, 80, 0), V(0, 0, 1), 2.3), False)
sketch8.addGeometry(Part.Circle(V(100, 80, 0), V(0, 0, 1), 2.3), False)
sketch8.addGeometry(Part.Circle(V(114.1, 79.2, 0), V(0, 0, 1), 2.3), False)
sketch8.addGeometry(Part.Circle(V(150, 80, 0), V(0, 0, 1), 2.3), False)
sketch8.addGeometry(Part.Circle(V(165, 80, 0), V(0, 0, 1), 2.3), False)
sketch8.addGeometry(Part.Circle(V(200, 80, 0), V(0, 0, 1), 2.3), False)
sketch8.addGeometry(Part.Circle(V(215, 80, 0), V(0, 0, 1), 2.3), False)
sketch8.addGeometry(Part.Circle(V(250, 80, 0), V(0, 0, 1), 2.3), False)
sketch8.addGeometry(Part.Circle(V(265, 80, 0), V(0, 0, 1), 2.3), False)
sketch8.addGeometry(Part.Circle(V(300, 80, 0), V(0, 0, 1), 2.3), False)
sketch8.addGeometry(Part.Circle(V(300, 5, 0), V(0, 0, 1), 2.3), False)
sketch8.addGeometry(Part.Circle(V(265, 5, 0), V(0, 0, 1), 2.3), False)
sketch8.addGeometry(Part.Circle(V(250, 5, 0), V(0, 0, 1), 2.3), False)
sketch8.addGeometry(Part.Circle(V(215, 5, 0), V(0, 0, 1), 2.3), False)
sketch8.addGeometry(Part.Circle(V(200, 5, 0), V(0, 0, 1), 2.3), False)
sketch8.addGeometry(Part.Circle(V(165, 5, 0), V(0, 0, 1), 2.3), False)
sketch8.addGeometry(Part.Circle(V(150, 5, 0), V(0, 0, 1), 2.3), False)
sketch8.addGeometry(Part.Circle(V(115, 5, 0), V(0, 0, 1), 2.3), False)
sketch8.addConstraint(Sketcher.Constraint("Equal", 0, 1))
sketch8.addConstraint(Sketcher.Constraint("Equal", 1, 2))
sketch8.addConstraint(Sketcher.Constraint("Equal", 2, 3))
sketch8.addConstraint(Sketcher.Constraint("Equal", 3, 4))
sketch8.addConstraint(Sketcher.Constraint("Equal", 4, 5))
sketch8.addConstraint(Sketcher.Constraint("Equal", 5, 6))
sketch8.addConstraint(Sketcher.Constraint("Equal", 6, 7))
sketch8.addConstraint(Sketcher.Constraint("Equal", 7, 8))
sketch8.addConstraint(Sketcher.Constraint("Equal", 8, 9))
sketch8.addConstraint(Sketcher.Constraint("Equal", 9, 10))
sketch8.addConstraint(Sketcher.Constraint("Equal", 10, 11))
sketch8.addConstraint(Sketcher.Constraint("Equal", 11, 12))
sketch8.addConstraint(Sketcher.Constraint("Equal", 12, 13))
sketch8.addConstraint(Sketcher.Constraint("Equal", 13, 14))
sketch8.addConstraint(Sketcher.Constraint("Equal", 14, 15))
sketch8.addConstraint(Sketcher.Constraint("Equal", 15, 16))
sketch8.addConstraint(Sketcher.Constraint("Equal", 16, 17))
sketch8.addConstraint(Sketcher.Constraint("Equal", 17, 18))
sketch8.addConstraint(Sketcher.Constraint("Equal", 18, 19))
sketch8.addConstraint(Sketcher.Constraint("Equal", 19, 20))
sketch8.addConstraint(Sketcher.Constraint("Equal", 20, 21))
sketch8.addConstraint(Sketcher.Constraint("Equal", 21, 22))
sketch8.addConstraint(Sketcher.Constraint("Equal", 22, 23))
sketch8.addConstraint(Sketcher.Constraint("Horizontal", 0, 3, 1, 3))
sketch8.addConstraint(Sketcher.Constraint("Horizontal", 2, 3, 3, 3))
sketch8.addConstraint(Sketcher.Constraint("Horizontal", 3, 3, 4, 3))
sketch8.addConstraint(Sketcher.Constraint("Horizontal", 4, 3, 5, 3))
sketch8.addConstraint(Sketcher.Constraint("Horizontal", 1, 3, 6, 3))
sketch8.addConstraint(Sketcher.Constraint("Horizontal", 6, 3, 7, 3))
sketch8.addConstraint(Sketcher.Constraint("Horizontal", 7, 3, 9, 3))
sketch8.addConstraint(Sketcher.Constraint("Horizontal", 9, 3, 10, 3))
sketch8.addConstraint(Sketcher.Constraint("Horizontal", 10, 3, 11, 3))
sketch8.addConstraint(Sketcher.Constraint("Horizontal", 11, 3, 12, 3))
sketch8.addConstraint(Sketcher.Constraint("Horizontal", 12, 3, 13, 3))
sketch8.addConstraint(Sketcher.Constraint("Horizontal", 13, 3, 14, 3))
sketch8.addConstraint(Sketcher.Constraint("Horizontal", 14, 3, 15, 3))
sketch8.addConstraint(Sketcher.Constraint("Horizontal", 5, 3, 16, 3))
sketch8.addConstraint(Sketcher.Constraint("Horizontal", 16, 3, 17, 3))
sketch8.addConstraint(Sketcher.Constraint("Horizontal", 17, 3, 18, 3))
sketch8.addConstraint(Sketcher.Constraint("Horizontal", 18, 3, 19, 3))
sketch8.addConstraint(Sketcher.Constraint("Horizontal", 19, 3, 20, 3))
sketch8.addConstraint(Sketcher.Constraint("Horizontal", 20, 3, 21, 3))
sketch8.addConstraint(Sketcher.Constraint("Horizontal", 21, 3, 22, 3))
sketch8.addConstraint(Sketcher.Constraint("Horizontal", 22, 3, 23, 3))
sketch8.addConstraint(Sketcher.Constraint("Vertical", 1, 3, 2, 3))
sketch8.addConstraint(Sketcher.Constraint("Vertical", 0, 3, 3, 3))
sketch8.addConstraint(Sketcher.Constraint("Vertical", 4, 3, 6, 3))
sketch8.addConstraint(Sketcher.Constraint("Vertical", 15, 3, 16, 3))
sketch8.addConstraint(Sketcher.Constraint("Vertical", 14, 3, 17, 3))
sketch8.addConstraint(Sketcher.Constraint("Vertical", 13, 3, 18, 3))
sketch8.addConstraint(Sketcher.Constraint("Vertical", 12, 3, 19, 3))
sketch8.addConstraint(Sketcher.Constraint("Vertical", 11, 3, 20, 3))
sketch8.addConstraint(Sketcher.Constraint("Vertical", 10, 3, 21, 3))
sketch8.addConstraint(Sketcher.Constraint("Vertical", 9, 3, 22, 3))
sketch8.addConstraint(Sketcher.Constraint("Diameter", 0, Q("4.6 mm")))
sketch8.addConstraint(Sketcher.Constraint("DistanceX", -1, 1, 0, 3, Q("50 mm")))
sketch8.addConstraint(Sketcher.Constraint("DistanceY", -1, 1, 0, 3, Q("80 mm")))
sketch8.addConstraint(Sketcher.Constraint("DistanceX", -1, 1, 1, 3, Q("15 mm")))
sketch8.addConstraint(Sketcher.Constraint("DistanceY", -1, 1, 2, 3, Q("5 mm")))
sketch8.addConstraint(Sketcher.Constraint("DistanceX", -1, 1, 4, 3, Q("65 mm")))
sketch8.addConstraint(Sketcher.Constraint("DistanceX", -1, 1, 7, 3, Q("100 mm")))
sketch8.addConstraint(Sketcher.Constraint("DistanceX", -1, 1, 9, 3, Q("150 mm")))
sketch8.addConstraint(Sketcher.Constraint("DistanceX", -1, 1, 10, 3, Q("165 mm")))
sketch8.addConstraint(Sketcher.Constraint("DistanceX", -1, 1, 11, 3, Q("200 mm")))
sketch8.addConstraint(Sketcher.Constraint("DistanceX", -1, 1, 12, 3, Q("215 mm")))
sketch8.addConstraint(Sketcher.Constraint("DistanceX", -1, 1, 13, 3, Q("250 mm")))
sketch8.addConstraint(Sketcher.Constraint("DistanceX", -1, 1, 14, 3, Q("265 mm")))
sketch8.addConstraint(Sketcher.Constraint("DistanceX", -1, 1, 15, 3, Q("300 mm")))
sketch8.addConstraint(Sketcher.Constraint("DistanceX", -1, 1, 23, 3, Q("115 mm")))
sketch8.addConstraint(Sketcher.Constraint("DistanceY", -1, 1, 8, 3, Q("79.164011 mm")))
sketch8.addConstraint(Sketcher.Constraint("DistanceX", -1, 1, 5, 3, Q("99.834927 mm")))
sketch8.addConstraint(Sketcher.Constraint("DistanceX", -1, 1, 8, 3, Q("114.145512 mm")))
sketch8.setExpression("Constraints[54]", "Params.sketch8_diameter")
pocket4 = doc.addObject("PartDesign::Pocket", "Pocket003")
body.addObject(pocket4)
pocket4.Profile = sketch8
pocket4.setExpression("Length", "Params.pocket4_length")
pocket4.Reversed = True

# Sketch on XZ plane
sketch9 = doc.addObject("Sketcher::SketchObject", "Sketch008")
body.addObject(sketch9)
sketch9.AttachmentSupport = (doc.XZ_Plane, [""])
sketch9.MapMode = "FlatFace"
sketch9.AttachmentOffset = App.Placement(V(0, 0, -50), App.Rotation())
sketch9.addGeometry(Part.LineSegment(V(158, 0, 0), V(158, 85, 0)), False)
sketch9.addGeometry(Part.LineSegment(V(158, 85, 0), V(340, 85, 0)), False)
sketch9.addGeometry(Part.LineSegment(V(340, 85, 0), V(340, 0, 0)), False)
sketch9.addGeometry(Part.LineSegment(V(340, 0, 0), V(158, 0, 0)), False)
sketch9.addConstraint(Sketcher.Constraint("Coincident", 0, 2, 1, 1))
sketch9.addConstraint(Sketcher.Constraint("Coincident", 1, 2, 2, 1))
sketch9.addConstraint(Sketcher.Constraint("Coincident", 2, 2, 3, 1))
sketch9.addConstraint(Sketcher.Constraint("Coincident", 3, 2, 0, 1))
sketch9.addConstraint(Sketcher.Constraint("Vertical", 0))
sketch9.addConstraint(Sketcher.Constraint("Horizontal", 1))
sketch9.addConstraint(Sketcher.Constraint("Vertical", 2))
sketch9.addConstraint(Sketcher.Constraint("Horizontal", 3))
sketch9.addConstraint(Sketcher.Constraint("PointOnObject", 2, 2, -1))
sketch9.addConstraint(Sketcher.Constraint("DistanceY", 0, 1, 0, 2, Q("85 mm")))
sketch9.addConstraint(Sketcher.Constraint("DistanceX", -1, 1, 0, 2, Q("157.5 mm")))
sketch9.addConstraint(Sketcher.Constraint("DistanceX", 1, 1, 1, 2, Q("182.800023 mm")))
sketch9.setExpression("Constraints[9]", "Params.sketch9_height")
pocket5 = doc.addObject("PartDesign::Pocket", "Pocket004")
body.addObject(pocket5)
pocket5.Profile = sketch9
pocket5.setExpression("Length", "Params.pocket5_length")
pocket5.Reversed = True

doc.recompute()
